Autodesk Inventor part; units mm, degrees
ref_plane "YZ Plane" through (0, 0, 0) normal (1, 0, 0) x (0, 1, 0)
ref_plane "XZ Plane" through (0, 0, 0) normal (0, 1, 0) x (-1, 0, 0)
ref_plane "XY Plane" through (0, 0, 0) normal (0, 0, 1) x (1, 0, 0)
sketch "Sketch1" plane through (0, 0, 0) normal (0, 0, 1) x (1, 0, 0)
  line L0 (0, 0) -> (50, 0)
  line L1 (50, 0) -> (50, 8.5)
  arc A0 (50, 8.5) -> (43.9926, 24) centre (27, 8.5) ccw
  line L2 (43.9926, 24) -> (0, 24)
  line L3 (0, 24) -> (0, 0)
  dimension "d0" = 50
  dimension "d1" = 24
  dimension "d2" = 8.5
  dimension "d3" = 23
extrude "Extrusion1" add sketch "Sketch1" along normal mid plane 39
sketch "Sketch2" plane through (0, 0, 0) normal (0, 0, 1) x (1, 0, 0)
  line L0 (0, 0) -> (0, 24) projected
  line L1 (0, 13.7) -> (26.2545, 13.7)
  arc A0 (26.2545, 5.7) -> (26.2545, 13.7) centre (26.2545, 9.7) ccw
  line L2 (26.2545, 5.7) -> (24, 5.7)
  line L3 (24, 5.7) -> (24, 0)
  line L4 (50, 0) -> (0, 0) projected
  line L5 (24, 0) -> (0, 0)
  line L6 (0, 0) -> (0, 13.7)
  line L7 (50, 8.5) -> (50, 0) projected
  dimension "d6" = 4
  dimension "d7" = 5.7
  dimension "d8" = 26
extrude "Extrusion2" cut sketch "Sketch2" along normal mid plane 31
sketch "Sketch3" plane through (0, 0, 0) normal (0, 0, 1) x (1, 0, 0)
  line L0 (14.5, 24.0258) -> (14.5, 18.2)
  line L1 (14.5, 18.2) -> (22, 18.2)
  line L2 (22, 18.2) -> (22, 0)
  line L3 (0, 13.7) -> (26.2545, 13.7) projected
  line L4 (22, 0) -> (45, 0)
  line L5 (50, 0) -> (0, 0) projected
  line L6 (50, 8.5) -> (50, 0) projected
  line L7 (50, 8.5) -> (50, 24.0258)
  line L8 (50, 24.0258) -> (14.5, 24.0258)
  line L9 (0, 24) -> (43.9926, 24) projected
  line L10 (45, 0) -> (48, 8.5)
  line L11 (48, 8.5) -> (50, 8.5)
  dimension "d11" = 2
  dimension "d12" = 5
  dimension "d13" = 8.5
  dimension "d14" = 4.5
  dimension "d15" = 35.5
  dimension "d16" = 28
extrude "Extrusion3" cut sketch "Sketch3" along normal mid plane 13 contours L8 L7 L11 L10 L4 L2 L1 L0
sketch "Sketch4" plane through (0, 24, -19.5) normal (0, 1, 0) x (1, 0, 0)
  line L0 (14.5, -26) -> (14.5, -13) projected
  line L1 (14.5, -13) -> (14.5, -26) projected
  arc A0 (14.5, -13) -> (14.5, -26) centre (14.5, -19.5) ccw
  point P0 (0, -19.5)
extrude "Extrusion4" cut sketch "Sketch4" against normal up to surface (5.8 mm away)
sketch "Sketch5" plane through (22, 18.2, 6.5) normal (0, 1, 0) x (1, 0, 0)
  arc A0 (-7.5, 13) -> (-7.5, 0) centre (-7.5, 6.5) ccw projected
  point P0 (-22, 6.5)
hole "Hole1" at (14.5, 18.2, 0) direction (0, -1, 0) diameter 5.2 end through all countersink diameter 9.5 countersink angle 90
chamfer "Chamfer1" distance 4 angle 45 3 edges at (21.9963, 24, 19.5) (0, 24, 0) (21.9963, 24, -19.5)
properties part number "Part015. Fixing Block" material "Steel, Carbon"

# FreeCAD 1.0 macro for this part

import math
import FreeCAD as App
import Part
import Sketcher
from FreeCAD import Vector
Q = App.Units.Quantity


def edges_at(feature, points):
    """Names of the edges that pass closest to the given points."""
    edges = feature.Shape.Edges
    near = lambda p: min(range(len(edges)), key=lambda i: edges[i].distToShape(Part.Vertex(*p))[0])
    return sorted({f"Edge{near(p) + 1}" for p in points})

doc = App.newDocument("Part")
body = doc.addObject("PartDesign::Body", "Body")

sketch1 = body.newObject("Sketcher::SketchObject", "Sketch")
sketch1.AttachmentSupport = (doc.getObject("XY_Plane"), [""])
sketch1.MapMode = "FlatFace"
sketch1.addGeometry(Part.LineSegment(Vector(0, 24, 0), Vector(0, 0, 0)), False)
sketch1.addGeometry(Part.LineSegment(Vector(0, 0, 0), Vector(50, 0, 0)), False)
sketch1.addGeometry(Part.LineSegment(Vector(50, 0, 0), Vector(50, 8.5, 0)), False)
sketch1.addGeometry(Part.ArcOfCircle(Part.Circle(Vector(27, 8.5, 0), Vector(0, 0, 1), 23), math.radians(0), math.radians(42.369875)), False)
sketch1.addGeometry(Part.LineSegment(Vector(43.9926, 24, 0), Vector(0, 24, 0)), False)
sketch1.addConstraint(Sketcher.Constraint("Coincident", 0, 2, 1, 1))
sketch1.addConstraint(Sketcher.Constraint("Coincident", 1, 2, 2, 1))
sketch1.addConstraint(Sketcher.Constraint("Tangent", 2, 2, 3, 1))
sketch1.addConstraint(Sketcher.Constraint("Coincident", 3, 2, 4, 1))
sketch1.addConstraint(Sketcher.Constraint("Coincident", 4, 2, 0, 1))
sketch1.addConstraint(Sketcher.Constraint("Vertical", 0))
sketch1.addConstraint(Sketcher.Constraint("Horizontal", 1))
sketch1.addConstraint(Sketcher.Constraint("Vertical", 2))
sketch1.addConstraint(Sketcher.Constraint("Horizontal", 4))
sketch1.addConstraint(Sketcher.Constraint("Coincident", 0, 2, -1, 1))
sketch1.addConstraint(Sketcher.Constraint("Radius", 3, Q("23 mm")))
sketch1.addConstraint(Sketcher.Constraint("DistanceX", 1, 1, 1, 2, Q("50 mm")))
sketch1.addConstraint(Sketcher.Constraint("DistanceY", 0, 2, 0, 1, Q("24 mm")))
sketch1.addConstraint(Sketcher.Constraint("DistanceY", 2, 1, 2, 2, Q("8.5 mm")))
pad1 = body.newObject("PartDesign::Pad", "Pad")
pad1.Profile = sketch1
pad1.Length = 39
pad1.Midplane = True

sketch2 = body.newObject("Sketcher::SketchObject", "Sketch001")
sketch2.AttachmentSupport = (doc.getObject("XY_Plane"), [""])
sketch2.MapMode = "FlatFace"
sketch2.addGeometry(Part.LineSegment(Vector(0, 13.7, 0), Vector(0, 0, 0)), False)
sketch2.addGeometry(Part.LineSegment(Vector(0, 0, 0), Vector(24, 0, 0)), False)
sketch2.addGeometry(Part.LineSegment(Vector(24, 0, 0), Vector(24, 5.7, 0)), False)
sketch2.addGeometry(Part.LineSegment(Vector(24, 5.7, 0), Vector(26.2545, 5.7, 0)), False)
sketch2.addGeometry(Part.ArcOfCircle(Part.Circle(Vector(26.2545, 9.7, 0), Vector(0, 0, 1), 4), math.radians(-90), math.radians(90)), False)
sketch2.addGeometry(Part.LineSegment(Vector(26.2545, 13.7, 0), Vector(0, 13.7, 0)), False)
sketch2.addConstraint(Sketcher.Constraint("Coincident", 0, 2, 1, 1))
sketch2.addConstraint(Sketcher.Constraint("Coincident", 1, 2, 2, 1))
sketch2.addConstraint(Sketcher.Constraint("Coincident", 2, 2, 3, 1))
sketch2.addConstraint(Sketcher.Constraint("Tangent", 3, 2, 4, 1))
sketch2.addConstraint(Sketcher.Constraint("Tangent", 4, 2, 5, 1))
sketch2.addConstraint(Sketcher.Constraint("Coincident", 5, 2, 0, 1))
sketch2.addConstraint(Sketcher.Constraint("Vertical", 0))
sketch2.addConstraint(Sketcher.Constraint("Horizontal", 1))
sketch2.addConstraint(Sketcher.Constraint("Vertical", 2))
sketch2.addConstraint(Sketcher.Constraint("Horizontal", 3))
sketch2.addConstraint(Sketcher.Constraint("Horizontal", 5))
sketch2.addConstraint(Sketcher.Constraint("Coincident", 0, 2, -1, 1))
sketch2.addConstraint(Sketcher.Constraint("Radius", 4, Q("4 mm")))
sketch2.addConstraint(Sketcher.Constraint("DistanceY", 2, 1, 2, 2, Q("5.7 mm")))
sketch2.addConstraint(Sketcher.Constraint("DistanceX", 1, 1, 1, 2, Q("24 mm")))
sketch2.addConstraint(Sketcher.Constraint("DistanceX", 3, 1, 3, 2, Q("2.2545 mm")))
pocket1 = body.newObject("PartDesign::Pocket", "Pocket")
pocket1.Profile = sketch2
pocket1.Length = 31
pocket1.Midplane = True

sketch3 = body.newObject("Sketcher::SketchObject", "Sketch002")
sketch3.AttachmentSupport = (doc.getObject("XY_Plane"), [""])
sketch3.MapMode = "FlatFace"
sketch3.addGeometry(Part.LineSegment(Vector(50, 24.0258, 0), Vector(14.5, 24.0258, 0)), False)
sketch3.addGeometry(Part.LineSegment(Vector(14.5, 24.0258, 0), Vector(14.5, 18.2, 0)), False)
sketch3.addGeometry(Part.LineSegment(Vector(14.5, 18.2, 0), Vector(22, 18.2, 0)), False)
sketch3.addGeometry(Part.LineSegment(Vector(22, 18.2, 0), Vector(22, 0, 0)), False)
sketch3.addGeometry(Part.LineSegment(Vector(22, 0, 0), Vector(45, 0, 0)), False)
sketch3.addGeometry(Part.LineSegment(Vector(45, 0, 0), Vector(48, 8.5, 0)), False)
sketch3.addGeometry(Part.LineSegment(Vector(48, 8.5, 0), Vector(50, 8.5, 0)), False)
sketch3.addGeometry(Part.LineSegment(Vector(50, 8.5, 0), Vector(50, 24.0258, 0)), False)
sketch3.addConstraint(Sketcher.Constraint("Coincident", 0, 2, 1, 1))
sketch3.addConstraint(Sketcher.Constraint("Coincident", 1, 2, 2, 1))
sketch3.addConstraint(Sketcher.Constraint("Coincident", 2, 2, 3, 1))
sketch3.addConstraint(Sketcher.Constraint("Coincident", 3, 2, 4, 1))
sketch3.addConstraint(Sketcher.Constraint("Coincident", 4, 2, 5, 1))
sketch3.addConstraint(Sketcher.Constraint("Coincident", 5, 2, 6, 1))
sketch3.addConstraint(Sketcher.Constraint("Coincident", 6, 2, 7, 1))
sketch3.addConstraint(Sketcher.Constraint("Coincident", 7, 2, 0, 1))
sketch3.addConstraint(Sketcher.Constraint("Horizontal", 0))
sketch3.addConstraint(Sketcher.Constraint("Vertical", 1))
sketch3.addConstraint(Sketcher.Constraint("Horizontal", 2))
sketch3.addConstraint(Sketcher.Constraint("Vertical", 3))
sketch3.addConstraint(Sketcher.Constraint("Horizontal", 4))
sketch3.addConstraint(Sketcher.Constraint("Horizontal", 6))
sketch3.addConstraint(Sketcher.Constraint("Vertical", 7))
sketch3.addConstraint(Sketcher.Constraint("PointOnObject", 3, 2, -1))
sketch3.addConstraint(Sketcher.Constraint("DistanceX", 6, 1, 6, 2, Q("2 mm")))
sketch3.addConstraint(Sketcher.Constraint("DistanceX", 0, 2, 0, 1, Q("35.5 mm")))
sketch3.addConstraint(Sketcher.Constraint("DistanceX", 4, 2, 6, 2, Q("5 mm")))
sketch3.addConstraint(Sketcher.Constraint("DistanceX", 3, 2, 6, 2, Q("28 mm")))
sketch3.addConstraint(Sketcher.Constraint("DistanceY", -1, 1, 5, 2, Q("8.5 mm")))
sketch3.addConstraint(Sketcher.Constraint("DistanceY", 3, 2, 3, 1, Q("18.2 mm")))
sketch3.addConstraint(Sketcher.Constraint("DistanceX", -1, 1, 2, 2, Q("22 mm")))
sketch3.addConstraint(Sketcher.Constraint("DistanceY", 1, 2, 1, 1, Q("5.8258 mm")))
pocket2 = body.newObject("PartDesign::Pocket", "Pocket001")
pocket2.Profile = sketch3
pocket2.Length = 13
pocket2.Midplane = True

sketch4 = body.newObject("Sketcher::SketchObject", "Sketch003")
sketch4.AttachmentSupport = (doc.getObject("XZ_Plane"), [""])
sketch4.MapMode = "FlatFace"
sketch4.AttachmentOffset = App.Placement(Vector(0, 0, -24), App.Rotation())
sketch4.addGeometry(Part.ArcOfCircle(Part.Circle(Vector(14.5, 0, 0), Vector(0, 0, 1), 6.5), math.radians(90), math.radians(270)), False)
sketch4.addGeometry(Part.LineSegment(Vector(14.5, 6.5, 0), Vector(14.5, -6.5, 0)), False)
sketch4.addConstraint(Sketcher.Constraint("Coincident", 0, 1, 1, 1))
sketch4.addConstraint(Sketcher.Constraint("Coincident", 1, 2, 0, 2))
sketch4.addConstraint(Sketcher.Constraint("Vertical", 1))
sketch4.addConstraint(Sketcher.Constraint("PointOnObject", 0, 3, -1))
sketch4.addConstraint(Sketcher.Constraint("Radius", 0, Q("6.5 mm")))
sketch4.addConstraint(Sketcher.Constraint("DistanceX", -1, 1, 0, 3, Q("14.5 mm")))
sketch4.addConstraint(Sketcher.Constraint("DistanceX", -1, 1, 0, 1, Q("14.5 mm")))
pocket3 = body.newObject("PartDesign::Pocket", "Pocket002")
pocket3.Profile = sketch4
pocket3.Length = 5.8
pocket3.Reversed = True

sketch5 = body.newObject("Sketcher::SketchObject", "Sketch004")
sketch5.AttachmentSupport = (doc.getObject("XZ_Plane"), [""])
sketch5.MapMode = "FlatFace"
sketch5.AttachmentOffset = App.Placement(Vector(0, 0, -18.2), App.Rotation())
sketch5.addGeometry(Part.Circle(Vector(14.5, 0, 0), Vector(0, 0, 1), 2.6), False)
sketch5.addConstraint(Sketcher.Constraint("PointOnObject", 0, 3, -1))
sketch5.addConstraint(Sketcher.Constraint("Diameter", 0, Q("5.2 mm")))
sketch5.addConstraint(Sketcher.Constraint("DistanceX", -1, 1, 0, 3, Q("14.5 mm")))
doc.recompute()
hole = body.newObject("PartDesign::Hole", "Hole")
hole.Profile = sketch5
hole.ThreadType = "None"
hole.Diameter = 5.2
hole.DepthType = "ThroughAll"
hole.HoleCutType = "Countersink"
hole.HoleCutDiameter = 9.5
hole.HoleCutCountersinkAngle = 90
hole.Reversed = True
doc.recompute()

chamfer = body.newObject("PartDesign::Chamfer", "Chamfer")
chamfer.Base = (hole, edges_at(hole, [(21.996, 24, 19.5), (0, 24, 0), (21.996, 24, -19.5)]))
chamfer.Size = 4

doc.recompute()
